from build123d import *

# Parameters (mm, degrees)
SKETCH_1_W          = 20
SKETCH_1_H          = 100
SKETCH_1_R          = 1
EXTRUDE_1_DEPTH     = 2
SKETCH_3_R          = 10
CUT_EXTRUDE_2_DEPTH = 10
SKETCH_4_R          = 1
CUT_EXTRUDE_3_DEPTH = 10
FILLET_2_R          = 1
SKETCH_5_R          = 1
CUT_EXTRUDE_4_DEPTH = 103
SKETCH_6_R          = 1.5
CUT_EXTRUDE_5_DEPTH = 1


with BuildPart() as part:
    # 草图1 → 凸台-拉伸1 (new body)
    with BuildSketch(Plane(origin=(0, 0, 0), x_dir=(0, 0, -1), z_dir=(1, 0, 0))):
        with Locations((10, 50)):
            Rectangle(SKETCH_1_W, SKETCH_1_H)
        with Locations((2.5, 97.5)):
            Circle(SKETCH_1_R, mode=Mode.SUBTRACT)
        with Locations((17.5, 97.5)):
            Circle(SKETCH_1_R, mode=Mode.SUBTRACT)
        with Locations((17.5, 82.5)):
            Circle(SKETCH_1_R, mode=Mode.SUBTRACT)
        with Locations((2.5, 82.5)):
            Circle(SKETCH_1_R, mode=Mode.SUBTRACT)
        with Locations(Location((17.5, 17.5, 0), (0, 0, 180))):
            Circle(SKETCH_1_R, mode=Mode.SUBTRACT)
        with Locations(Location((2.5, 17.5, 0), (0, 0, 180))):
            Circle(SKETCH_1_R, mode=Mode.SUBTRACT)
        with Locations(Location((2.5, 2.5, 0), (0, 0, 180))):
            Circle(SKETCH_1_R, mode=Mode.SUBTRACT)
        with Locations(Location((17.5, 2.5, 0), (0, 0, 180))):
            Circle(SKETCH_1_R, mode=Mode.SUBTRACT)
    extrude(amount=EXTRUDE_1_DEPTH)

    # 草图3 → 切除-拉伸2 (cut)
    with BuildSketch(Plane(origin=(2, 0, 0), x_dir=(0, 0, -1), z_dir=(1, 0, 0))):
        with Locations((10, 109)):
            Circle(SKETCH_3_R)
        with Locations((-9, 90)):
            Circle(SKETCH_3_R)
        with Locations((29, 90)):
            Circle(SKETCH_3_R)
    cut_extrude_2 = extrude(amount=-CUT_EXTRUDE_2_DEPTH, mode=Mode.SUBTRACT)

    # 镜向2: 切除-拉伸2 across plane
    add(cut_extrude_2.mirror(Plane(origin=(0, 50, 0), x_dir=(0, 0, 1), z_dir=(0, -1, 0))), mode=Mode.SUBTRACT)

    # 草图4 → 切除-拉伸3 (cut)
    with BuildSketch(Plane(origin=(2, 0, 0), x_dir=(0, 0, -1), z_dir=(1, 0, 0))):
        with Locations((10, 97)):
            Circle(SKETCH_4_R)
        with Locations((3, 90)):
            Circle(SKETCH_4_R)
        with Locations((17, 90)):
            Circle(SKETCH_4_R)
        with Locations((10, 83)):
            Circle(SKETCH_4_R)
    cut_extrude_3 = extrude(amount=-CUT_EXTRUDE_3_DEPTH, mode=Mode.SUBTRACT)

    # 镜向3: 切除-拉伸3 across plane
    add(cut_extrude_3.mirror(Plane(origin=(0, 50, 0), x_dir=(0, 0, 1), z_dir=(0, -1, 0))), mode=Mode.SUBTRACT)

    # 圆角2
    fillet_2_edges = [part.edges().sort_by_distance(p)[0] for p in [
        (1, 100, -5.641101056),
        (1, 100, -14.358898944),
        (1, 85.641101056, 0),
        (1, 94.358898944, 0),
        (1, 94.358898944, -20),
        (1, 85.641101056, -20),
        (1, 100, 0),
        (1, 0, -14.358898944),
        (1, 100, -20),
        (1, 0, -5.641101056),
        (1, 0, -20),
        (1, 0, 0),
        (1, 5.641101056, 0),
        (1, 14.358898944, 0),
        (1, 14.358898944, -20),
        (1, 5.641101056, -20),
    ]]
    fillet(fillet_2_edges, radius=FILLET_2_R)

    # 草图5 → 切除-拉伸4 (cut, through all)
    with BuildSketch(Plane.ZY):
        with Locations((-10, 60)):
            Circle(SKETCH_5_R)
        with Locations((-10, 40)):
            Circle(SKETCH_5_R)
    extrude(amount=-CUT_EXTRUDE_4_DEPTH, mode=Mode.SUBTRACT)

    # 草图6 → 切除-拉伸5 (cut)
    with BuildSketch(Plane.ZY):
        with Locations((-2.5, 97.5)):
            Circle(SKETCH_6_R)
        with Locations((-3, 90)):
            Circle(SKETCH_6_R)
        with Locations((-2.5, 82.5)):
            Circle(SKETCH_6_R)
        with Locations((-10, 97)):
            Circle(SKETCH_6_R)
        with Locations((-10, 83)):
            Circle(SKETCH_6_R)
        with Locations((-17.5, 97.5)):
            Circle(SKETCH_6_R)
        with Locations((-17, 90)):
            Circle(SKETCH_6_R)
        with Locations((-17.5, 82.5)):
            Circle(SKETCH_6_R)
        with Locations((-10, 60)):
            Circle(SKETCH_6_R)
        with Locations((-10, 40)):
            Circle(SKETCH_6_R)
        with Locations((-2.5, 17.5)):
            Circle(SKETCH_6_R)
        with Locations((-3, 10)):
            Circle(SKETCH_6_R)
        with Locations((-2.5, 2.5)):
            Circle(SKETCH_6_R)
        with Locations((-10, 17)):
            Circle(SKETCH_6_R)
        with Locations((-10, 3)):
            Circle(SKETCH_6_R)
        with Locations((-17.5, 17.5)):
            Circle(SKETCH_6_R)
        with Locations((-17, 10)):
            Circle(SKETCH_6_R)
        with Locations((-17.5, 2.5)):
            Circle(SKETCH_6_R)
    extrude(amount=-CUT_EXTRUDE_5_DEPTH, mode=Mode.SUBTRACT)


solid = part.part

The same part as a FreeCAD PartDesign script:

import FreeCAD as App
import Part
import Sketcher
Q = App.Units.Quantity


def edges_at(feature, points):
    """Names of the edges that pass closest to the given points."""
    edges = feature.Shape.Edges
    near = lambda p: min(range(len(edges)), key=lambda i: edges[i].distToShape(Part.Vertex(*p))[0])
    return sorted({f"Edge{near(p) + 1}" for p in points})


def add_polygon(sketch, points):
    """Adds a closed chain of lines whose ends are joined by coincident constraints."""
    first, n = sketch.GeometryCount, len(points)
    for a, b in zip(points, points[1:] + points[:1]):
        sketch.addGeometry(Part.LineSegment(App.Vector(*a, 0), App.Vector(*b, 0)), False)
    for i in range(n):
        sketch.addConstraint(Sketcher.Constraint("Coincident", first + i, 2, first + (i + 1) % n, 1))

doc = App.newDocument("Part")
params = doc.addObject("Spreadsheet::Sheet", "Params")
for row, (alias, value) in enumerate([
    ("sketch1_diameter", "2 mm"),
    ("sketch1_width", "100 mm"),
    ("sketch1_height", "20 mm"),
    ("pad1_length", "2 mm"),
    ("sketch2_diameter", "20 mm"),
    ("pocket1_length", "10 mm"),
    ("sketch3_diameter", "2 mm"),
    ("pocket2_length", "10 mm"),
    ("fillet_radius", "1 mm"),
    ("sketch4_diameter", "2 mm"),
    ("sketch5_diameter", "3 mm"),
    ("pocket4_length", "1 mm"),
], start=1):
    params.set(f"A{row}", alias)
    params.set(f"B{row}", "=" + value)
    params.setAlias(f"B{row}", alias)

body = doc.addObject("PartDesign::Body", "Body")

# Sketch on YZ plane
sketch1 = body.newObject("Sketcher::SketchObject", "Sketch")
sketch1.AttachmentSupport = (doc.getObject("YZ_Plane"), [""])
sketch1.MapMode = "FlatFace"
add_polygon(sketch1, [(100, 0), (0, 0), (0, -20), (100, -20)])  # lines 0-3
sketch1.addGeometry(Part.Circle(App.Vector(2.5, -2.5, 0), App.Vector(0, 0, 1), 1), False)  # 4
sketch1.addGeometry(Part.Circle(App.Vector(17.5, -2.5, 0), App.Vector(0, 0, 1), 1), False)  # 5
sketch1.addGeometry(Part.Circle(App.Vector(2.5, -17.5, 0), App.Vector(0, 0, 1), 1), False)  # 6
sketch1.addGeometry(Part.Circle(App.Vector(17.5, -17.5, 0), App.Vector(0, 0, 1), 1), False)  # 7
sketch1.addGeometry(Part.Circle(App.Vector(82.5, -2.5, 0), App.Vector(0, 0, 1), 1), False)  # 8
sketch1.addGeometry(Part.Circle(App.Vector(97.5, -2.5, 0), App.Vector(0, 0, 1), 1), False)  # 9
sketch1.addGeometry(Part.Circle(App.Vector(82.5, -17.5, 0), App.Vector(0, 0, 1), 1), False)  # 10
sketch1.addGeometry(Part.Circle(App.Vector(97.5, -17.5, 0), App.Vector(0, 0, 1), 1), False)  # 11
sketch1.addConstraint([
    Sketcher.Constraint("Horizontal", 0),
    Sketcher.Constraint("Vertical", 1),
    Sketcher.Constraint("Horizontal", 2),
    Sketcher.Constraint("Vertical", 3),
    Sketcher.Constraint("Coincident", 0, 2, -1, 1),
    Sketcher.Constraint("Equal", 4, 5),
    Sketcher.Constraint("Equal", 5, 6),
    Sketcher.Constraint("Equal", 6, 7),
    Sketcher.Constraint("Equal", 7, 8),
    Sketcher.Constraint("Equal", 8, 9),
    Sketcher.Constraint("Equal", 9, 10),
    Sketcher.Constraint("Equal", 10, 11),
    Sketcher.Constraint("Horizontal", 4, 3, 5, 3),
    Sketcher.Constraint("Horizontal", 6, 3, 7, 3),
    Sketcher.Constraint("Horizontal", 5, 3, 8, 3),
    Sketcher.Constraint("Horizontal", 8, 3, 9, 3),
    Sketcher.Constraint("Horizontal", 7, 3, 10, 3),
    Sketcher.Constraint("Horizontal", 10, 3, 11, 3),
    Sketcher.Constraint("Vertical", 4, 3, 6, 3),
    Sketcher.Constraint("Vertical", 5, 3, 7, 3),
    Sketcher.Constraint("Vertical", 8, 3, 10, 3),
    Sketcher.Constraint("Vertical", 9, 3, 11, 3),
    Sketcher.Constraint("Diameter", 4, Q("2 mm")),
    Sketcher.Constraint("DistanceX", 0, 2, 0, 1, Q("100 mm")),
    Sketcher.Constraint("DistanceY", 1, 2, 1, 1, Q("20 mm")),
    Sketcher.Constraint("DistanceX", 4, 3, 5, 3, Q("15 mm")),
    Sketcher.Constraint("DistanceY", 6, 3, 4, 3, Q("15 mm")),
    Sketcher.Constraint("DistanceX", 5, 3, 8, 3, Q("65 mm")),
    Sketcher.Constraint("DistanceX", 8, 3, 9, 3, Q("15 mm")),
    Sketcher.Constraint("DistanceX", -1, 1, 4, 3, Q("2.5 mm")),
    Sketcher.Constraint("DistanceY", 4, 3, -1, 1, Q("2.5 mm")),
])
sketch1.setExpression("Constraints[26]", "Params.sketch1_diameter")
sketch1.setExpression("Constraints[27]", "Params.sketch1_width")
sketch1.setExpression("Constraints[28]", "Params.sketch1_height")
pad1 = body.newObject("PartDesign::Pad", "Pad")
pad1.Profile = sketch1
pad1.setExpression("Length", "Params.pad1_length")

# Sketch on YZ plane
sketch2 = body.newObject("Sketcher::SketchObject", "Sketch001")
sketch2.AttachmentSupport = (doc.getObject("YZ_Plane"), [""])
sketch2.MapMode = "FlatFace"
sketch2.AttachmentOffset = App.Placement(App.Vector(0, 0, 2), App.Rotation())
sketch2.addGeometry([
    Part.Circle(App.Vector(109, -10, 0), App.Vector(0, 0, 1), 10),
    Part.Circle(App.Vector(90, 9, 0), App.Vector(0, 0, 1), 10),
    Part.Circle(App.Vector(90, -29, 0), App.Vector(0, 0, 1), 10),
], False)
sketch2.addConstraint([
    Sketcher.Constraint("Equal", 0, 1),
    Sketcher.Constraint("Equal", 1, 2),
    Sketcher.Constraint("Vertical", 1, 3, 2, 3),
    Sketcher.Constraint("Diameter", 0, Q("20 mm")),
    Sketcher.Constraint("DistanceX", -1, 1, 0, 3, Q("109 mm")),
    Sketcher.Constraint("DistanceY", 0, 3, -1, 1, Q("10 mm")),
    Sketcher.Constraint("DistanceX", -1, 1, 1, 3, Q("90 mm")),
    Sketcher.Constraint("DistanceY", -1, 1, 1, 3, Q("9 mm")),
    Sketcher.Constraint("DistanceY", 2, 3, -1, 1, Q("29 mm")),
])
sketch2.setExpression("Constraints[3]", "Params.sketch2_diameter")
pocket1 = body.newObject("PartDesign::Pocket", "Pocket")
pocket1.Profile = sketch2
pocket1.setExpression("Length", "Params.pocket1_length")
doc.recompute()

datumplane = body.newObject("PartDesign::Plane", "DatumPlane")
datumplane.AttachmentSupport = (doc.getObject("XZ_Plane"), [""])
datumplane.MapMode = "FlatFace"
datumplane.AttachmentOffset = App.Placement(App.Vector(0, 0, -50), App.Rotation())
mirrored = body.newObject("PartDesign::Mirrored", "Mirrored")
mirrored.Originals = [pocket1]
mirrored.MirrorPlane = (datumplane, [""])
body.Tip = mirrored

# Sketch on YZ plane
sketch3 = body.newObject("Sketcher::SketchObject", "Sketch002")
sketch3.AttachmentSupport = (doc.getObject("YZ_Plane"), [""])
sketch3.MapMode = "FlatFace"
sketch3.AttachmentOffset = App.Placement(App.Vector(0, 0, 2), App.Rotation())
sketch3.addGeometry([
    Part.Circle(App.Vector(97, -10, 0), App.Vector(0, 0, 1), 1),
    Part.Circle(App.Vector(90, -3, 0), App.Vector(0, 0, 1), 1),
    Part.Circle(App.Vector(90, -17, 0), App.Vector(0, 0, 1), 1),
    Part.Circle(App.Vector(83, -10, 0), App.Vector(0, 0, 1), 1),
], False)
sketch3.addConstraint([
    Sketcher.Constraint("Equal", 0, 1),
    Sketcher.Constraint("Equal", 1, 2),
    Sketcher.Constraint("Equal", 2, 3),
    Sketcher.Constraint("Horizontal", 0, 3, 3, 3),
    Sketcher.Constraint("Vertical", 1, 3, 2, 3),
    Sketcher.Constraint("Diameter", 0, Q("2 mm")),
    Sketcher.Constraint("DistanceX", -1, 1, 0, 3, Q("97 mm")),
    Sketcher.Constraint("DistanceY", 0, 3, -1, 1, Q("10 mm")),
    Sketcher.Constraint("DistanceX", -1, 1, 1, 3, Q("90 mm")),
    Sketcher.Constraint("DistanceY", 1, 3, -1, 1, Q("3 mm")),
    Sketcher.Constraint("DistanceY", 2, 3, -1, 1, Q("17 mm")),
    Sketcher.Constraint("DistanceX", -1, 1, 3, 3, Q("83 mm")),
])
sketch3.setExpression("Constraints[5]", "Params.sketch3_diameter")
pocket2 = body.newObject("PartDesign::Pocket", "Pocket001")
pocket2.Profile = sketch3
pocket2.setExpression("Length", "Params.pocket2_length")
doc.recompute()

datumplane2 = body.newObject("PartDesign::Plane", "DatumPlane001")
datumplane2.AttachmentSupport = (doc.getObject("XZ_Plane"), [""])
datumplane2.MapMode = "FlatFace"
datumplane2.AttachmentOffset = App.Placement(App.Vector(0, 0, -50), App.Rotation())
mirrored2 = body.newObject("PartDesign::Mirrored", "Mirrored001")
mirrored2.Originals = [pocket2]
mirrored2.MirrorPlane = (datumplane2, [""])
body.Tip = mirrored2
doc.recompute()

fillet = body.newObject("PartDesign::Fillet", "Fillet")
fillet.Base = (mirrored2, edges_at(mirrored2, [
    (1, 100, -5.641),
    (1, 100, -14.359),
    (1, 85.641, 0),
    (1, 94.359, 0),
    (1, 94.359, -20),
    (1, 85.641, -20),
    (1, 100, 0),
    (1, 0, -14.359),
    (1, 100, -20),
    (1, 0, -5.641),
    (1, 0, -20),
    (1, 0, 0),
    (1, 5.641, 0),
    (1, 14.359, 0),
    (1, 14.359, -20),
    (1, 5.641, -20),
]))
fillet.setExpression("Radius", "Params.fillet_radius")

# Sketch on YZ plane
sketch4 = body.newObject("Sketcher::SketchObject", "Sketch003")
sketch4.AttachmentSupport = (doc.getObject("YZ_Plane"), [""])
sketch4.MapMode = "FlatFace"
sketch4.addGeometry([
    Part.Circle(App.Vector(60, -10, 0), App.Vector(0, 0, 1), 1),
    Part.Circle(App.Vector(40, -10, 0), App.Vector(0, 0, 1), 1),
], False)
sketch4.addConstraint([
    Sketcher.Constraint("Equal", 0, 1),
    Sketcher.Constraint("Horizontal", 0, 3, 1, 3),
    Sketcher.Constraint("Diameter", 0, Q("2 mm")),
    Sketcher.Constraint("DistanceX", -1, 1, 0, 3, Q("60 mm")),
    Sketcher.Constraint("DistanceY", 0, 3, -1, 1, Q("10 mm")),
    Sketcher.Constraint("DistanceX", -1, 1, 1, 3, Q("40 mm")),
])
sketch4.setExpression("Constraints[2]", "Params.sketch4_diameter")
pocket3 = body.newObject("PartDesign::Pocket", "Pocket002")
pocket3.Profile = sketch4
pocket3.Type = "ThroughAll"
pocket3.Reversed = True

# Sketch on YZ plane
sketch5 = body.newObject("Sketcher::SketchObject", "Sketch004")
sketch5.AttachmentSupport = (doc.getObject("YZ_Plane"), [""])
sketch5.MapMode = "FlatFace"
sketch5.addGeometry([
    Part.Circle(App.Vector(97.5, -2.5, 0), App.Vector(0, 0, 1), 1.5),  # 0
    Part.Circle(App.Vector(90, -3, 0), App.Vector(0, 0, 1), 1.5),  # 1
    Part.Circle(App.Vector(82.5, -2.5, 0), App.Vector(0, 0, 1), 1.5),  # 2
    Part.Circle(App.Vector(97, -10, 0), App.Vector(0, 0, 1), 1.5),  # 3
    Part.Circle(App.Vector(83, -10, 0), App.Vector(0, 0, 1), 1.5),  # 4
    Part.Circle(App.Vector(97.5, -17.5, 0), App.Vector(0, 0, 1), 1.5),  # 5
    Part.Circle(App.Vector(90, -17, 0), App.Vector(0, 0, 1), 1.5),  # 6
    Part.Circle(App.Vector(82.5, -17.5, 0), App.Vector(0, 0, 1), 1.5),  # 7
    Part.Circle(App.Vector(60, -10, 0), App.Vector(0, 0, 1), 1.5),  # 8
    Part.Circle(App.Vector(40, -10, 0), App.Vector(0, 0, 1), 1.5),  # 9
    Part.Circle(App.Vector(17.5, -2.5, 0), App.Vector(0, 0, 1), 1.5),  # 10
    Part.Circle(App.Vector(10, -3, 0), App.Vector(0, 0, 1), 1.5),  # 11
    Part.Circle(App.Vector(2.5, -2.5, 0), App.Vector(0, 0, 1), 1.5),  # 12
    Part.Circle(App.Vector(17, -10, 0), App.Vector(0, 0, 1), 1.5),  # 13
    Part.Circle(App.Vector(3, -10, 0), App.Vector(0, 0, 1), 1.5),  # 14
    Part.Circle(App.Vector(17.5, -17.5, 0), App.Vector(0, 0, 1), 1.5),  # 15
    Part.Circle(App.Vector(10, -17, 0), App.Vector(0, 0, 1), 1.5),  # 16
    Part.Circle(App.Vector(2.5, -17.5, 0), App.Vector(0, 0, 1), 1.5),  # 17
], False)
sketch5.addConstraint([
    Sketcher.Constraint("Equal", 0, 1),
    Sketcher.Constraint("Equal", 1, 2),
    Sketcher.Constraint("Equal", 2, 3),
    Sketcher.Constraint("Equal", 3, 4),
    Sketcher.Constraint("Equal", 4, 5),
    Sketcher.Constraint("Equal", 5, 6),
    Sketcher.Constraint("Equal", 6, 7),
    Sketcher.Constraint("Equal", 7, 8),
    Sketcher.Constraint("Equal", 8, 9),
    Sketcher.Constraint("Equal", 9, 10),
    Sketcher.Constraint("Equal", 10, 11),
    Sketcher.Constraint("Equal", 11, 12),
    Sketcher.Constraint("Equal", 12, 13),
    Sketcher.Constraint("Equal", 13, 14),
    Sketcher.Constraint("Equal", 14, 15),
    Sketcher.Constraint("Equal", 15, 16),
    Sketcher.Constraint("Equal", 16, 17),
    Sketcher.Constraint("Horizontal", 0, 3, 2, 3),
    Sketcher.Constraint("Horizontal", 3, 3, 4, 3),
    Sketcher.Constraint("Horizontal", 5, 3, 7, 3),
    Sketcher.Constraint("Horizontal", 4, 3, 8, 3),
    Sketcher.Constraint("Horizontal", 8, 3, 9, 3),
    Sketcher.Constraint("Horizontal", 2, 3, 10, 3),
    Sketcher.Constraint("Horizontal", 1, 3, 11, 3),
    Sketcher.Constraint("Horizontal", 10, 3, 12, 3),
    Sketcher.Constraint("Horizontal", 9, 3, 13, 3),
    Sketcher.Constraint("Horizontal", 13, 3, 14, 3),
    Sketcher.Constraint("Horizontal", 7, 3, 15, 3),
    Sketcher.Constraint("Horizontal", 6, 3, 16, 3),
    Sketcher.Constraint("Horizontal", 15, 3, 17, 3),
    Sketcher.Constraint("Vertical", 0, 3, 5, 3),
    Sketcher.Constraint("Vertical", 1, 3, 6, 3),
    Sketcher.Constraint("Vertical", 2, 3, 7, 3),
    Sketcher.Constraint("Vertical", 10, 3, 15, 3),
    Sketcher.Constraint("Vertical", 11, 3, 16, 3),
    Sketcher.Constraint("Vertical", 12, 3, 17, 3),
    Sketcher.Constraint("Diameter", 0, Q("3 mm")),
    Sketcher.Constraint("DistanceX", -1, 1, 1, 3, Q("90 mm")),
    Sketcher.Constraint("DistanceY", 1, 3, -1, 1, Q("3 mm")),
    Sketcher.Constraint("DistanceX", -1, 1, 3, 3, Q("97 mm")),
    Sketcher.Constraint("DistanceY", 3, 3, -1, 1, Q("10 mm")),
    Sketcher.Constraint("DistanceX", -1, 1, 4, 3, Q("83 mm")),
    Sketcher.Constraint("DistanceY", 6, 3, -1, 1, Q("17 mm")),
    Sketcher.Constraint("DistanceX", -1, 1, 8, 3, Q("60 mm")),
    Sketcher.Constraint("DistanceX", -1, 1, 9, 3, Q("40 mm")),
    Sketcher.Constraint("DistanceX", -1, 1, 11, 3, Q("10 mm")),
    Sketcher.Constraint("DistanceX", -1, 1, 13, 3, Q("17 mm")),
    Sketcher.Constraint("DistanceX", -1, 1, 14, 3, Q("3 mm")),
    Sketcher.Constraint("DistanceX", 2, 3, 0, 3, Q("15 mm")),
    Sketcher.Constraint("DistanceY", 5, 3, 0, 3, Q("15 mm")),
    Sketcher.Constraint("DistanceX", 10, 3, 2, 3, Q("65 mm")),
    Sketcher.Constraint("DistanceX", 12, 3, 10, 3, Q("15 mm")),
    Sketcher.Constraint("DistanceX", -1, 1, 0, 3, Q("97.5 mm")),
    Sketcher.Constraint("DistanceY", 0, 3, -1, 1, Q("2.5 mm")),
])
sketch5.setExpression("Constraints[36]", "Params.sketch5_diameter")
pocket4 = body.newObject("PartDesign::Pocket", "Pocket003")
pocket4.Profile = sketch5
pocket4.setExpression("Length", "Params.pocket4_length")
pocket4.Reversed = True

doc.recompute()
